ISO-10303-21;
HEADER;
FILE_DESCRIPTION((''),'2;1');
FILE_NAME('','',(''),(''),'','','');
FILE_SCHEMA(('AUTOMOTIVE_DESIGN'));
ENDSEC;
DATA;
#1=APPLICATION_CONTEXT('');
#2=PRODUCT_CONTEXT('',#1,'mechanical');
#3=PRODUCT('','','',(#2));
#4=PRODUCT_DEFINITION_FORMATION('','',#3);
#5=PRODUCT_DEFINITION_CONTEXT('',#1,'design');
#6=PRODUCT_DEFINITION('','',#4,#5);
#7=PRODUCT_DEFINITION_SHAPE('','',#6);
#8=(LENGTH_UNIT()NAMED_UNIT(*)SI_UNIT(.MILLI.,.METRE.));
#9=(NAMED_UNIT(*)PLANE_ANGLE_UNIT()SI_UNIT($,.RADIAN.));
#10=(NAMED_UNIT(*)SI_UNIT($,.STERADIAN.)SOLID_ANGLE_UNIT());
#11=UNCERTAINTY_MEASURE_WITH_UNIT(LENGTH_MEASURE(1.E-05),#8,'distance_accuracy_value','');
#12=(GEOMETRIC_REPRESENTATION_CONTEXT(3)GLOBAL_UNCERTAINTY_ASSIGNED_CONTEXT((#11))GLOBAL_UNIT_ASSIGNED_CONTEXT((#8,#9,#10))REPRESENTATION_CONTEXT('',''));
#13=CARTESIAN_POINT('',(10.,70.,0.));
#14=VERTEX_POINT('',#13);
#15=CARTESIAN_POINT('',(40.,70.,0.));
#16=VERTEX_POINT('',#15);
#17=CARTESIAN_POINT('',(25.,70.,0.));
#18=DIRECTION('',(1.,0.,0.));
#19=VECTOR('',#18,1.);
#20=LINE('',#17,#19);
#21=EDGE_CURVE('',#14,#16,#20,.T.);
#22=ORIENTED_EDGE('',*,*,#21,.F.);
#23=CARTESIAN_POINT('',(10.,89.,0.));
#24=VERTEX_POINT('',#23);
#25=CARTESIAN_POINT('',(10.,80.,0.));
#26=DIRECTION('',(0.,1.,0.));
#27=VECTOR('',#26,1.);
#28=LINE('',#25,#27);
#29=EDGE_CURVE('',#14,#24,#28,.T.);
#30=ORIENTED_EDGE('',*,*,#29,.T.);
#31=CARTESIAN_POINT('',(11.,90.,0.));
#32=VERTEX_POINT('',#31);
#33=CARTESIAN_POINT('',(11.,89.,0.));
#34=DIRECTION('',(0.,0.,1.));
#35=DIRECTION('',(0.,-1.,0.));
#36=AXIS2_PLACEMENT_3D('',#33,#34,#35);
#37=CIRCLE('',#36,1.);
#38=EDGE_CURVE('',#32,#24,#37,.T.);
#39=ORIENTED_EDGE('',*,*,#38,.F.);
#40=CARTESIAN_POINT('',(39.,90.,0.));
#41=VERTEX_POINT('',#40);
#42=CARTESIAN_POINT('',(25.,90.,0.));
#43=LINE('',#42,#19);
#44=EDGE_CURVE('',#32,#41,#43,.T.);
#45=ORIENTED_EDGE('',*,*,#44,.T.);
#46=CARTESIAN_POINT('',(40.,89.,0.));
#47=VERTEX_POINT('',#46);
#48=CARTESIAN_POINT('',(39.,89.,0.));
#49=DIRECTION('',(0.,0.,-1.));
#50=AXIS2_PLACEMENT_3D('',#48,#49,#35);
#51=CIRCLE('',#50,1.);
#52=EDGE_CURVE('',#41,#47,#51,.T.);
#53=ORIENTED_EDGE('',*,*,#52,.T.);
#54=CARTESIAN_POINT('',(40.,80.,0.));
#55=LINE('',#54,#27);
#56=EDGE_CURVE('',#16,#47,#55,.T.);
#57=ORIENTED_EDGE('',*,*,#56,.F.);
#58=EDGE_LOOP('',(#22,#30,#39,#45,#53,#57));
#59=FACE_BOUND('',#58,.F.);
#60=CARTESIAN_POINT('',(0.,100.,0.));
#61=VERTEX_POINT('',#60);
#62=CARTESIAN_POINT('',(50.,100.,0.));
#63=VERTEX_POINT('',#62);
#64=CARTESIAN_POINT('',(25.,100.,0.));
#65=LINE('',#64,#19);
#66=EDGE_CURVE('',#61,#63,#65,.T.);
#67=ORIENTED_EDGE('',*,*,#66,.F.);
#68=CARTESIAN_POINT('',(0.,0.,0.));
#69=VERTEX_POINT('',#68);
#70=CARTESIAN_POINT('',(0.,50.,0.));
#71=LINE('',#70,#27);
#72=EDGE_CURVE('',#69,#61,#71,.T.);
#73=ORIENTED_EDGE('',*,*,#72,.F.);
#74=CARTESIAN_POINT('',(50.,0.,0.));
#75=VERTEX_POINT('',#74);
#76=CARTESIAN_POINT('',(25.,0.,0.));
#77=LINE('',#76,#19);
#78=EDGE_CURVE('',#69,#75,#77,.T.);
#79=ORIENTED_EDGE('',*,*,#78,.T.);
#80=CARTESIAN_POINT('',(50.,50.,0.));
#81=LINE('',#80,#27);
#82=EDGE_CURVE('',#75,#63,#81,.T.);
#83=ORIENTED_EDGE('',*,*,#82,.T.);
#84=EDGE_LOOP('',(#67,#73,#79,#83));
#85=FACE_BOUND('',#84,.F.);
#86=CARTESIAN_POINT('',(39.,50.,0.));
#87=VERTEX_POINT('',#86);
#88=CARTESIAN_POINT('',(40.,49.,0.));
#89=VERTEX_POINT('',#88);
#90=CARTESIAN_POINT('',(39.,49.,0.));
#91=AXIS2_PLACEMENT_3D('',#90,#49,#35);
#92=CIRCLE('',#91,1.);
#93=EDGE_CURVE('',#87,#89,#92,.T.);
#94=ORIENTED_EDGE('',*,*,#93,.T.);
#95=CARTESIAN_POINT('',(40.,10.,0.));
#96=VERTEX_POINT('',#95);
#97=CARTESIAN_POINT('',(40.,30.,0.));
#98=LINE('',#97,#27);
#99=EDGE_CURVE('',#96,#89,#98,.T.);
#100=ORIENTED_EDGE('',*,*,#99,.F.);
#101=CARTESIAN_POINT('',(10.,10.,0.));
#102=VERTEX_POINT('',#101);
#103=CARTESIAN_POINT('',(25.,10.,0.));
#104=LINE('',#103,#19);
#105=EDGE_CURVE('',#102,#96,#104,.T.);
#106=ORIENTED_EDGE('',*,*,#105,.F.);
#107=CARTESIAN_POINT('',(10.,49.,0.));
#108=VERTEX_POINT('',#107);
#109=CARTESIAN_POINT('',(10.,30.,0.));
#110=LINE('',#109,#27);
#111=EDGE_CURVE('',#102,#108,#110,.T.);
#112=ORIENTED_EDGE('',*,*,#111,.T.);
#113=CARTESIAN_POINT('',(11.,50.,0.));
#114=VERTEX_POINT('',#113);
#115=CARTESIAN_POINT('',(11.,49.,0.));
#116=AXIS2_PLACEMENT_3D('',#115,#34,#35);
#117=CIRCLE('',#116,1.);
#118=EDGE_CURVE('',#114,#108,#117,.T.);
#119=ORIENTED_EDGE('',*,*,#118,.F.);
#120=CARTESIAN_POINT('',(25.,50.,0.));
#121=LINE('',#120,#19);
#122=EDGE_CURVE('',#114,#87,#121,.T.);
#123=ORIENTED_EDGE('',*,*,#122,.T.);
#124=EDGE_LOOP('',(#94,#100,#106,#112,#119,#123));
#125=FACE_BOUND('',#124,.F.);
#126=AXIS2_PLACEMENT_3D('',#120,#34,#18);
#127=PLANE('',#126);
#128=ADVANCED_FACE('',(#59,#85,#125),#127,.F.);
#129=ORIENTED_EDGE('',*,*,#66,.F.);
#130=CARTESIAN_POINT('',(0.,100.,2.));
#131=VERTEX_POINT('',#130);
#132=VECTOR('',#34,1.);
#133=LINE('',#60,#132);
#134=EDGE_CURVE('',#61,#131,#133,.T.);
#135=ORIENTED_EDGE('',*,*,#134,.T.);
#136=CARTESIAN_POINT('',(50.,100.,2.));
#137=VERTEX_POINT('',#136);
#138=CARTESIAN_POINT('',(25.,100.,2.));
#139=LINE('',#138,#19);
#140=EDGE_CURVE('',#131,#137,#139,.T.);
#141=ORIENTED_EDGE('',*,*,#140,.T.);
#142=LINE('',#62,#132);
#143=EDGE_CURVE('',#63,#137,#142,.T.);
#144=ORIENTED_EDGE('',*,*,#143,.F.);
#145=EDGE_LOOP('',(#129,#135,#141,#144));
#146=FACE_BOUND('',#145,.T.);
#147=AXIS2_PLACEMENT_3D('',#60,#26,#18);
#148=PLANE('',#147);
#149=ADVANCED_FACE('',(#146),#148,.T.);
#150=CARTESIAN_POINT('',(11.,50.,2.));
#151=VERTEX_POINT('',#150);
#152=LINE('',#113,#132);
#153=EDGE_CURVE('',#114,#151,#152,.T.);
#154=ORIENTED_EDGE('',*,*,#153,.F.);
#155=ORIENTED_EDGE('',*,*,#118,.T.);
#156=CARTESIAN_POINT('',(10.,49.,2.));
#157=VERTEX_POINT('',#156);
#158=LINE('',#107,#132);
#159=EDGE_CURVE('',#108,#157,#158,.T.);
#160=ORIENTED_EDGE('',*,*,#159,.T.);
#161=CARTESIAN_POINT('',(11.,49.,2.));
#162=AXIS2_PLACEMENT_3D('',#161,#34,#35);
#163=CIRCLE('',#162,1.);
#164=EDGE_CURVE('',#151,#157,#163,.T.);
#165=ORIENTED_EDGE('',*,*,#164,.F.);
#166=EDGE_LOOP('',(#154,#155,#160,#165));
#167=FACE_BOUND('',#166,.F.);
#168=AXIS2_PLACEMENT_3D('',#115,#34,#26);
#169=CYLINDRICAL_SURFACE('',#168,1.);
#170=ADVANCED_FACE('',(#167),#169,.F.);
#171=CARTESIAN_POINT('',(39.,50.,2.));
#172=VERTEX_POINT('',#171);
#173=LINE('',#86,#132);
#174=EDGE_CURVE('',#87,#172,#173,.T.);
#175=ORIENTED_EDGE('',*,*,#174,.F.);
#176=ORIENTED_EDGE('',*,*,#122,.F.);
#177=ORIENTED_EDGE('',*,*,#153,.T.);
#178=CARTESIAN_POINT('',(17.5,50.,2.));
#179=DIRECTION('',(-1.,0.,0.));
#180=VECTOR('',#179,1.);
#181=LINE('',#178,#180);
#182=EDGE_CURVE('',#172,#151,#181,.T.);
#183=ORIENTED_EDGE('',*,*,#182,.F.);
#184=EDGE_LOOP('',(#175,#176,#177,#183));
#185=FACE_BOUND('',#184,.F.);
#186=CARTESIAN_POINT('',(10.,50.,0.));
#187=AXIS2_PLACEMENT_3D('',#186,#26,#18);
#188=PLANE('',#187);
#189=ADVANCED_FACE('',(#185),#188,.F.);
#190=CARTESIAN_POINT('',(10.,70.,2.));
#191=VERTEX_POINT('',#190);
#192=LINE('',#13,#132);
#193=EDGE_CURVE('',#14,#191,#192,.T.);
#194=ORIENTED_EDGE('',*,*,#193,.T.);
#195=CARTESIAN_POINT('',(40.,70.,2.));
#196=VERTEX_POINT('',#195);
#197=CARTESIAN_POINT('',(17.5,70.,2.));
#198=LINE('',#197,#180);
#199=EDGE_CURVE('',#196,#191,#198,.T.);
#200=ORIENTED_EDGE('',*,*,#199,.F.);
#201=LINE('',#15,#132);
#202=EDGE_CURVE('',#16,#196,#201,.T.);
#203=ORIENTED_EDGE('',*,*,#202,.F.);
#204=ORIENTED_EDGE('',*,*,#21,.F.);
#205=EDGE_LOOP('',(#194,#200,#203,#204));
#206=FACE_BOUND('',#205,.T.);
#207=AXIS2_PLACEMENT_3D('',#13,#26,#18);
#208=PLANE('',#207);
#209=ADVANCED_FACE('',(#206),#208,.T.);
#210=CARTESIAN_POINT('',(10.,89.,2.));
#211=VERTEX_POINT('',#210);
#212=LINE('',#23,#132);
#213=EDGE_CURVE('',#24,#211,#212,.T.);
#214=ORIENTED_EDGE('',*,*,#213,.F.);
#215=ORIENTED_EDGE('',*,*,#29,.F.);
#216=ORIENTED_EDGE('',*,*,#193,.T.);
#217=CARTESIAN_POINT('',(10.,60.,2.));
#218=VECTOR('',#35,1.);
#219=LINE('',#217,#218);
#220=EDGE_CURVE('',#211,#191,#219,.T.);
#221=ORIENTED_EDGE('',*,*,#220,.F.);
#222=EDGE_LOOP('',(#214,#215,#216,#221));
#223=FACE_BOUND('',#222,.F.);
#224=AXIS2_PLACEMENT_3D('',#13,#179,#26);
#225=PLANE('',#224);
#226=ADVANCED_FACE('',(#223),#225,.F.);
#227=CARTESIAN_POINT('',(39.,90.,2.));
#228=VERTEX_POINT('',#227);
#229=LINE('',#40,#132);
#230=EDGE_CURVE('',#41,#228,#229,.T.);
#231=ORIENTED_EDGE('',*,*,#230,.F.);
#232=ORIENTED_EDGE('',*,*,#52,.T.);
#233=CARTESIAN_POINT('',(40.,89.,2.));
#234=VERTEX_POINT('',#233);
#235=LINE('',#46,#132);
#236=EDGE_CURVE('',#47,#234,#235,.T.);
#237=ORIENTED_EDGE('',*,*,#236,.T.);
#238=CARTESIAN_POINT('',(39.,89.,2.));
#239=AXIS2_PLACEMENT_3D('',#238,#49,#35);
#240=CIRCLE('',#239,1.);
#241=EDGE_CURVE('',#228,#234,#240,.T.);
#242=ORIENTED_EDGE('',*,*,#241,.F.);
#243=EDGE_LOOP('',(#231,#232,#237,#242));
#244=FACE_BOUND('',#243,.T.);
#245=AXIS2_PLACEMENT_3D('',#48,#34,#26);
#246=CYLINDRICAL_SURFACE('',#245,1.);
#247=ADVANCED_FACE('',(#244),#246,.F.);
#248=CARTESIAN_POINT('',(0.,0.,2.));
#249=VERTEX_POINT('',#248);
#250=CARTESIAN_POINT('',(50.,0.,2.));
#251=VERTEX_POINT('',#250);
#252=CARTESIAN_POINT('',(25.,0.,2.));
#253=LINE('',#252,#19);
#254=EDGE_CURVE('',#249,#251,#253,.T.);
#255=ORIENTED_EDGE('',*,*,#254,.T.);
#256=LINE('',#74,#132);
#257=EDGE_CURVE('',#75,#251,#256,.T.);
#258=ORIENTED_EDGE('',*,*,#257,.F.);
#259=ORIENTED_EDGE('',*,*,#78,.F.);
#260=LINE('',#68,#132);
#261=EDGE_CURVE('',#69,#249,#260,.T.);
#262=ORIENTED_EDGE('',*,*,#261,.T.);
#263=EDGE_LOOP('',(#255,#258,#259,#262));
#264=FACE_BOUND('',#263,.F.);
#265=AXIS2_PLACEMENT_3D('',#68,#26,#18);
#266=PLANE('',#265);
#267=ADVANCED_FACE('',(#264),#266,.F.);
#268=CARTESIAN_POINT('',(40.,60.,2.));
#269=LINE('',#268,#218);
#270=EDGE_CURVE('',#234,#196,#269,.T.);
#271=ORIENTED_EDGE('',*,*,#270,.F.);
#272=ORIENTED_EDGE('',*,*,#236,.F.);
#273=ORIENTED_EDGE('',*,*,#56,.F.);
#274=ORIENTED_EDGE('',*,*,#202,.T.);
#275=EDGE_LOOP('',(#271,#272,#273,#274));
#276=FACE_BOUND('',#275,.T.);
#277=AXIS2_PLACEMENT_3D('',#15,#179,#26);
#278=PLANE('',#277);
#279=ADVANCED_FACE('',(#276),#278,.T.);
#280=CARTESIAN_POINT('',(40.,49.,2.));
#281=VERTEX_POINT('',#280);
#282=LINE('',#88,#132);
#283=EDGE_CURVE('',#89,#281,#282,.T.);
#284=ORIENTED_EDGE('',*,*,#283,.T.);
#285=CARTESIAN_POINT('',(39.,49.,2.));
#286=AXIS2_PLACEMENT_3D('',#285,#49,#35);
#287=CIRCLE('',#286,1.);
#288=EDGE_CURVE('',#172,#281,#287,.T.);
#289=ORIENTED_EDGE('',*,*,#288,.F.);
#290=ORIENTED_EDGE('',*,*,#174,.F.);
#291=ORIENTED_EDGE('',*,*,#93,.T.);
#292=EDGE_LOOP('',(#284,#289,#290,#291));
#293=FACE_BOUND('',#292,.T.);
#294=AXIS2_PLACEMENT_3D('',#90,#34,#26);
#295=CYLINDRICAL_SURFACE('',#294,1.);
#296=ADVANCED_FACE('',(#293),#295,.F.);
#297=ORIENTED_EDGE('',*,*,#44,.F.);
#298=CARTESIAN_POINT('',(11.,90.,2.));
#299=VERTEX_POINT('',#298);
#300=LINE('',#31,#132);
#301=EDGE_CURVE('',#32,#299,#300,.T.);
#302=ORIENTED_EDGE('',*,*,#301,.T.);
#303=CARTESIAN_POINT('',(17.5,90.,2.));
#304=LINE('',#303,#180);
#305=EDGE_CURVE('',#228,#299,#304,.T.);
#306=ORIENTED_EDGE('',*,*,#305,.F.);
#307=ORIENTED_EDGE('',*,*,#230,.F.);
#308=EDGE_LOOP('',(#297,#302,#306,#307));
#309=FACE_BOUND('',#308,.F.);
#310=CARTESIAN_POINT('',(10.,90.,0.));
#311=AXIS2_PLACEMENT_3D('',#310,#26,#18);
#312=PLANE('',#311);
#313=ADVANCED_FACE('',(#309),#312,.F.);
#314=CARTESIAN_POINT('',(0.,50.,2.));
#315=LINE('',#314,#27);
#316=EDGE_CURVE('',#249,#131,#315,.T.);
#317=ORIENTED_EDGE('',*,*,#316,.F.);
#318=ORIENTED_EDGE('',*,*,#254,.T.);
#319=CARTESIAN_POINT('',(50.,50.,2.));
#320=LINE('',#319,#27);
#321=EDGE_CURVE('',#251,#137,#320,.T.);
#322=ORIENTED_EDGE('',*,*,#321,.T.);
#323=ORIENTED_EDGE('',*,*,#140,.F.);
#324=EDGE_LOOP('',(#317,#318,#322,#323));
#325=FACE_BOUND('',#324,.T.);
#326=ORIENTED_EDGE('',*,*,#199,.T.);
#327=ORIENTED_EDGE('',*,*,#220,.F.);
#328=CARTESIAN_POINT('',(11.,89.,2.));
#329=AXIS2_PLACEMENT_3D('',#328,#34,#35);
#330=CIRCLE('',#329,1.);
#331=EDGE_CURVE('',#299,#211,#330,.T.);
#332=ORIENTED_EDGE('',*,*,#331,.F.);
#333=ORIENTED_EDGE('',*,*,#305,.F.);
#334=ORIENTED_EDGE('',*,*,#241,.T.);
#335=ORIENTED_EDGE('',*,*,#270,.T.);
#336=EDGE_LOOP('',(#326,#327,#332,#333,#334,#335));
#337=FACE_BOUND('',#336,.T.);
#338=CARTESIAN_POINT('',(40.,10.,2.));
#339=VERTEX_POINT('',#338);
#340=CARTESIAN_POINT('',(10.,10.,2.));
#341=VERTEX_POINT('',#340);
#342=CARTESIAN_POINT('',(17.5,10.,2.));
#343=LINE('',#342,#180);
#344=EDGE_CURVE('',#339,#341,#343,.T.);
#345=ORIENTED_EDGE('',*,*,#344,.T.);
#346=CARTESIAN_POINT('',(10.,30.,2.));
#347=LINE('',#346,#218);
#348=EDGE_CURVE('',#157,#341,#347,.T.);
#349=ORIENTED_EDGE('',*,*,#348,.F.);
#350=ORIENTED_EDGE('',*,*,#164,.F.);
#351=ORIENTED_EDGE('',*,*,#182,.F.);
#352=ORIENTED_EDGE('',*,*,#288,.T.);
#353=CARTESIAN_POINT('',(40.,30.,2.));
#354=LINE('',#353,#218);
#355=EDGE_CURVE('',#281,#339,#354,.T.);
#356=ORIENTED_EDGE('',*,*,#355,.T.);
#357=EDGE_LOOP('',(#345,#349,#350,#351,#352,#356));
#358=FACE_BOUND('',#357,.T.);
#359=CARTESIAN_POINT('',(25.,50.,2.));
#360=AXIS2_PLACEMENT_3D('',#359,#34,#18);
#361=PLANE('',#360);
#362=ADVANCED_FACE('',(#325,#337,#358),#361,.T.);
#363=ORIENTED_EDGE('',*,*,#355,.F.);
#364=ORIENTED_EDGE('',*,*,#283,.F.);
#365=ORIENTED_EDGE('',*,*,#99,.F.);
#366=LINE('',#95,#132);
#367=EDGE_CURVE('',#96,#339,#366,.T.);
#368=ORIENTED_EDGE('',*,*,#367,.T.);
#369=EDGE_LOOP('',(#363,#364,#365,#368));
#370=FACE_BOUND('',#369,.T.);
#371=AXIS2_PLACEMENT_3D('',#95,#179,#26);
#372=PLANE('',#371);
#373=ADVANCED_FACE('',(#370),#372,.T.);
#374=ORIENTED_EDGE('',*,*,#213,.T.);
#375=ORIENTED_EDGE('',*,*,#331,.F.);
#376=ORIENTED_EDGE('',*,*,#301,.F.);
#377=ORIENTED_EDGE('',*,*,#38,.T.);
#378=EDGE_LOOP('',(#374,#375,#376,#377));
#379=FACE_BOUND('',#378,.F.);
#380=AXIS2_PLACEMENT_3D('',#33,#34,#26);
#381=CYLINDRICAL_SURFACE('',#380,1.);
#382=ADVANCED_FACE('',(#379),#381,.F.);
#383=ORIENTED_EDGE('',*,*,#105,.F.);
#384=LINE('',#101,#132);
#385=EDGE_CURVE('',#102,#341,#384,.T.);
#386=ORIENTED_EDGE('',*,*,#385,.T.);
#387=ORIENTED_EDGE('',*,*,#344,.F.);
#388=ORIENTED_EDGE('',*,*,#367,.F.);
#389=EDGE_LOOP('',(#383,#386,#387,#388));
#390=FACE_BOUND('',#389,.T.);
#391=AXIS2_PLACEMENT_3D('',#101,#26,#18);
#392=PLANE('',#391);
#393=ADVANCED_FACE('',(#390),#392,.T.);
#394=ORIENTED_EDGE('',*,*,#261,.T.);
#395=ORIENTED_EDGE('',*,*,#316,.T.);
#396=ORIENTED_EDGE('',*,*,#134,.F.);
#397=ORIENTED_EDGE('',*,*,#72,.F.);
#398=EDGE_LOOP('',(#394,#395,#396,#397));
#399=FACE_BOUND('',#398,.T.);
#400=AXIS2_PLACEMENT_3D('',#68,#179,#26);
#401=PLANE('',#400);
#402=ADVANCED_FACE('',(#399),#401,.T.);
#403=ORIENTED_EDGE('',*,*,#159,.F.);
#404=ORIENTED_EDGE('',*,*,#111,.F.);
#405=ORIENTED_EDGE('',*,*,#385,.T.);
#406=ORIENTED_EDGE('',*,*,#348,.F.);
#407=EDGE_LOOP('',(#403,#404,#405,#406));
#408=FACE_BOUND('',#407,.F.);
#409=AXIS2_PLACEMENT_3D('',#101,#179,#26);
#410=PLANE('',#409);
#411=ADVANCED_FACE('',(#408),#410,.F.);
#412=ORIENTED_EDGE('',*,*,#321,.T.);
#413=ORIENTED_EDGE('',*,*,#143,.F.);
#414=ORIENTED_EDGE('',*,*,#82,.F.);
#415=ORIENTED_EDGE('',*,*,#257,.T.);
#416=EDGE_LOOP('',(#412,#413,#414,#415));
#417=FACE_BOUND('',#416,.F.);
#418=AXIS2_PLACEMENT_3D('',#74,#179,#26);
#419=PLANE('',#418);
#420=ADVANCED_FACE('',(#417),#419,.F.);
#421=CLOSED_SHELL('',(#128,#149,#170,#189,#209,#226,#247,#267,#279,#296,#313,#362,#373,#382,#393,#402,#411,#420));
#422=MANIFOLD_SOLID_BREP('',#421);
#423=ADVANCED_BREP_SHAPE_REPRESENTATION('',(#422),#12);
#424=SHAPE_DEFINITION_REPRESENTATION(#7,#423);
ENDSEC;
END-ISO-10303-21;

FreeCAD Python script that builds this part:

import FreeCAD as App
import Part
import Sketcher
from FreeCAD import Vector
Q = App.Units.Quantity


def edges_at(feature, points):
    """Names of the edges that pass closest to the given points."""
    edges = feature.Shape.Edges
    near = lambda p: min(range(len(edges)), key=lambda i: edges[i].distToShape(Part.Vertex(*p))[0])
    return sorted({f"Edge{near(p) + 1}" for p in points})


def add_polygon(sketch, points):
    """Adds a closed chain of lines whose ends are joined by coincident constraints."""
    first, n = sketch.GeometryCount, len(points)
    for a, b in zip(points, points[1:] + points[:1]):
        sketch.addGeometry(Part.LineSegment(App.Vector(*a, 0), App.Vector(*b, 0)), False)
    for i in range(n):
        sketch.addConstraint(Sketcher.Constraint("Coincident", first + i, 2, first + (i + 1) % n, 1))

doc = App.newDocument("Part")
params = doc.addObject("Spreadsheet::Sheet", "Params")
for row, (alias, value) in enumerate([
    ("sketch1_width", "30 mm"),
    ("sketch1_height", "40 mm"),
    ("pad1_length", "10 mm"),
    ("sketch2_width", "30 mm"),
    ("sketch2_height", "20 mm"),
    ("pad2_length", "10 mm"),
    ("sketch3_width", "50 mm"),
    ("sketch3_height", "100 mm"),
    ("pad3_length", "2 mm"),
    ("fillet_radius", "1 mm"),
    ("fillet2_radius", "1 mm"),
], start=1):
    params.set(f"A{row}", alias)
    params.set(f"B{row}", "=" + value)
    params.setAlias(f"B{row}", alias)

body = doc.addObject("PartDesign::Body", "Body")

sketch1 = doc.addObject("Sketcher::SketchObject", "Sketch")
body.addObject(sketch1)
sketch1.AttachmentSupport = (doc.XY_Plane, [""])
sketch1.MapMode = "FlatFace"
add_polygon(sketch1, [(10, 50), (10, 10), (40, 10), (40, 50)])
sketch1.addConstraint([
    Sketcher.Constraint("Vertical", 0),
    Sketcher.Constraint("Horizontal", 1),
    Sketcher.Constraint("Vertical", 2),
    Sketcher.Constraint("Horizontal", 3),
    Sketcher.Constraint("DistanceX", 1, 1, 1, 2, Q("30 mm")),
    Sketcher.Constraint("DistanceY", 0, 2, 0, 1, Q("40 mm")),
    Sketcher.Constraint("DistanceX", -1, 1, 0, 2, Q("10 mm")),
    Sketcher.Constraint("DistanceY", -1, 1, 0, 2, Q("10 mm")),
])
sketch1.setExpression("Constraints[8]", "Params.sketch1_width")
sketch1.setExpression("Constraints[9]", "Params.sketch1_height")
pad1 = doc.addObject("PartDesign::Pad", "Pad")
body.addObject(pad1)
pad1.Profile = sketch1
pad1.setExpression("Length", "Params.pad1_length")
body2 = doc.addObject("PartDesign::Body", "Body001")
body2.AllowCompound = True

sketch2 = doc.addObject("Sketcher::SketchObject", "Sketch001")
body2.addObject(sketch2)
sketch2.AttachmentSupport = (doc.getObject("XY_Plane001"), [""])
sketch2.MapMode = "FlatFace"
add_polygon(sketch2, [(10, 90), (10, 70), (40, 70), (40, 90)])
sketch2.addConstraint([
    Sketcher.Constraint("Vertical", 0),
    Sketcher.Constraint("Horizontal", 1),
    Sketcher.Constraint("Vertical", 2),
    Sketcher.Constraint("Horizontal", 3),
    Sketcher.Constraint("DistanceX", 1, 1, 1, 2, Q("30 mm")),
    Sketcher.Constraint("DistanceY", 0, 2, 0, 1, Q("20 mm")),
    Sketcher.Constraint("DistanceX", -1, 1, 0, 2, Q("10 mm")),
    Sketcher.Constraint("DistanceY", -1, 1, 0, 2, Q("70 mm")),
])
sketch2.setExpression("Constraints[8]", "Params.sketch2_width")
sketch2.setExpression("Constraints[9]", "Params.sketch2_height")
pad2 = doc.addObject("PartDesign::Pad", "Pad001")
body2.addObject(pad2)
pad2.Profile = sketch2
pad2.setExpression("Length", "Params.pad2_length")
doc.recompute()

boolean = doc.addObject("PartDesign::Boolean", "Boolean")
body2.addObject(boolean)
boolean.Type = "Fuse"
boolean.addObjects([body])
body3 = doc.addObject("PartDesign::Body", "Body002")

sketch3 = doc.addObject("Sketcher::SketchObject", "Sketch002")
body3.addObject(sketch3)
sketch3.AttachmentSupport = (doc.getObject("XY_Plane002"), [""])
sketch3.MapMode = "FlatFace"
add_polygon(sketch3, [(0, 100), (0, 0), (50, 0), (50, 100)])
sketch3.addConstraint([
    Sketcher.Constraint("Vertical", 0),
    Sketcher.Constraint("Horizontal", 1),
    Sketcher.Constraint("Vertical", 2),
    Sketcher.Constraint("Horizontal", 3),
    Sketcher.Constraint("Coincident", 0, 2, -1, 1),
    Sketcher.Constraint("DistanceX", 1, 1, 1, 2, Q("50 mm")),
    Sketcher.Constraint("DistanceY", 0, 2, 0, 1, Q("100 mm")),
])
sketch3.setExpression("Constraints[9]", "Params.sketch3_width")
sketch3.setExpression("Constraints[10]", "Params.sketch3_height")
pad3 = doc.addObject("PartDesign::Pad", "Pad002")
body3.addObject(pad3)
pad3.Profile = sketch3
pad3.setExpression("Length", "Params.pad3_length")
doc.recompute()

boolean2 = doc.addObject("PartDesign::Boolean", "Boolean001")
body3.addObject(boolean2)
boolean2.Type = "Cut"
boolean2.addObjects([body2])
doc.recompute()

fillet = doc.addObject("PartDesign::Fillet", "Fillet")
body3.addObject(fillet)
fillet.Base = (boolean2, edges_at(boolean2, [(10, 50, 1), (10, 90, 1)]))
fillet.setExpression("Radius", "Params.fillet_radius")
doc.recompute()

fillet2 = doc.addObject("PartDesign::Fillet", "Fillet001")
body3.addObject(fillet2)
fillet2.Base = (fillet, edges_at(fillet, [(40, 50, 1), (40, 90, 1)]))
fillet2.setExpression("Radius", "Params.fillet2_radius")

doc.recompute()
